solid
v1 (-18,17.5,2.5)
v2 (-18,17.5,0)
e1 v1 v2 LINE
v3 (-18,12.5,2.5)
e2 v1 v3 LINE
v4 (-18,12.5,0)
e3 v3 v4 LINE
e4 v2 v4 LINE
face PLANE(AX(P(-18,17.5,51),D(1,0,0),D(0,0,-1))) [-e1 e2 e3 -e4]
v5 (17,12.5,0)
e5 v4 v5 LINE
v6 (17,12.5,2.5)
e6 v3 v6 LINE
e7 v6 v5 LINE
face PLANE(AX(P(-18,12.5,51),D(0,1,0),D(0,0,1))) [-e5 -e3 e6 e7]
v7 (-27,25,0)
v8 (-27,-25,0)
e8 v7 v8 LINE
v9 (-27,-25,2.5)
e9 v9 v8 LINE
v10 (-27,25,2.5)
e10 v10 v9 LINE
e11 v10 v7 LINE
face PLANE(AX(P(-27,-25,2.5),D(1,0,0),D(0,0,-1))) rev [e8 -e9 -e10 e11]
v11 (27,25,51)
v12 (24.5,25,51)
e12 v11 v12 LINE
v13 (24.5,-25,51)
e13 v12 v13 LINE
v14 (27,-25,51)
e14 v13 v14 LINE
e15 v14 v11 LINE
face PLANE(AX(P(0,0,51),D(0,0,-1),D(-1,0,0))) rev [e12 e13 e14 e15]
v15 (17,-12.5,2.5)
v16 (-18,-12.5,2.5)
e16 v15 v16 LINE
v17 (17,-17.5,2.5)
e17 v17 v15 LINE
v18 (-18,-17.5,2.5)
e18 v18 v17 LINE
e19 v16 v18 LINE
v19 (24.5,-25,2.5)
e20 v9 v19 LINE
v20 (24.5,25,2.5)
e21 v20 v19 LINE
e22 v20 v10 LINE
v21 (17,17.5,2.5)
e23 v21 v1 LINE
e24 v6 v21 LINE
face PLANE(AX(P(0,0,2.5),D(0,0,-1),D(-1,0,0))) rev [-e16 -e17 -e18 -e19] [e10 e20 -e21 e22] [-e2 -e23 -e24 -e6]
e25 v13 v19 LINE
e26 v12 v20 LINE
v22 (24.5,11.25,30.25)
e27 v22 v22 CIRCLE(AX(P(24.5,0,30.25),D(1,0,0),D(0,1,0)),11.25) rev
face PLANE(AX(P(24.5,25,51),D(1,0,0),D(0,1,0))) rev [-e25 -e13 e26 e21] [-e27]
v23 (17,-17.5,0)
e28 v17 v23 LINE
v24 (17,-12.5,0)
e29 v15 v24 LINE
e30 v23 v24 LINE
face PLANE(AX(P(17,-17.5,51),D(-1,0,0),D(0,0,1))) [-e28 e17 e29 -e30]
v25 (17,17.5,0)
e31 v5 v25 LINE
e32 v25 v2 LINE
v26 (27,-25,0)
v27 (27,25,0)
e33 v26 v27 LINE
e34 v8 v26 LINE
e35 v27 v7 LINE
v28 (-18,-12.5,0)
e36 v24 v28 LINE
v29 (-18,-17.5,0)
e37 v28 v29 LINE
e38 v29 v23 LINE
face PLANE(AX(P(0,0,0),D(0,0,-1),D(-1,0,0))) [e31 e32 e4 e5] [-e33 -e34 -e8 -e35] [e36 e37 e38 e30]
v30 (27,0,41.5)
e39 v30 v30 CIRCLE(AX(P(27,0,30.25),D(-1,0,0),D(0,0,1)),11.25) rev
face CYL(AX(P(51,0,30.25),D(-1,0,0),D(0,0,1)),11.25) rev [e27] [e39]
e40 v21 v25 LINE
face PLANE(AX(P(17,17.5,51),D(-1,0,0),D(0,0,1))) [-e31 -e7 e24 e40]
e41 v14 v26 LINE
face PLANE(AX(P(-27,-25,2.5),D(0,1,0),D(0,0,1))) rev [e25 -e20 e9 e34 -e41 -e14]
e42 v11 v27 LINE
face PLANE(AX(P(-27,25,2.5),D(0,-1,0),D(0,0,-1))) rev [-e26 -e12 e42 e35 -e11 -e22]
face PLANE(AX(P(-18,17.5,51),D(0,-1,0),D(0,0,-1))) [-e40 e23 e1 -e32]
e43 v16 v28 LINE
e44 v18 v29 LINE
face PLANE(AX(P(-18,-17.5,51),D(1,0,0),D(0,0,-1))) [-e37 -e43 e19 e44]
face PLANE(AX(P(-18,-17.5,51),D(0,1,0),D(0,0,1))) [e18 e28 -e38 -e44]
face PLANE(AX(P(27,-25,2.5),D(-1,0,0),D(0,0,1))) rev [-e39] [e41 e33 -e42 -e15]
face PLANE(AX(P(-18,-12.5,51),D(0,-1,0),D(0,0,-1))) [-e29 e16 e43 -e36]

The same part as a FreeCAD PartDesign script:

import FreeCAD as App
import Part
import Sketcher

V = App.Vector
Q = App.Units.Quantity

doc = App.newDocument("Part")
body = doc.addObject("PartDesign::Body", "Body")

sketch1 = body.newObject("Sketcher::SketchObject", "Sketch")
sketch1.AttachmentSupport = (doc.getObject("XY_Plane"), [""])
sketch1.MapMode = "FlatFace"
sketch1.addGeometry([
    Part.LineSegment(V(-27, 25, 0), V(-27, -25, 0)),
    Part.LineSegment(V(-27, -25, 0), V(27, -25, 0)),
    Part.LineSegment(V(27, -25, 0), V(27, 25, 0)),
    Part.LineSegment(V(27, 25, 0), V(-27, 25, 0)),
], False)
sketch1.addConstraint([
    Sketcher.Constraint("Coincident", 0, 2, 1, 1),
    Sketcher.Constraint("Coincident", 1, 2, 2, 1),
    Sketcher.Constraint("Coincident", 2, 2, 3, 1),
    Sketcher.Constraint("Coincident", 3, 2, 0, 1),
    Sketcher.Constraint("Vertical", 0),
    Sketcher.Constraint("Horizontal", 1),
    Sketcher.Constraint("Vertical", 2),
    Sketcher.Constraint("Horizontal", 3),
    Sketcher.Constraint("Symmetric", 0, 2, 2, 2, -1, 1),
    Sketcher.Constraint("DistanceX", 1, 1, 1, 2, Q("54 mm")),
    Sketcher.Constraint("DistanceY", 0, 2, 0, 1, Q("50 mm")),
])
pad1 = body.newObject("PartDesign::Pad", "Pad")
pad1.Profile = sketch1
pad1.Length = 2.5

sketch2 = body.newObject("Sketcher::SketchObject", "Sketch001")
sketch2.AttachmentSupport = (doc.getObject("XY_Plane"), [""])
sketch2.MapMode = "FlatFace"
sketch2.addGeometry([
    Part.LineSegment(V(24.5, 25, 0), V(24.5, -25, 0)),
    Part.LineSegment(V(24.5, -25, 0), V(27, -25, 0)),
    Part.LineSegment(V(27, -25, 0), V(27, 25, 0)),
    Part.LineSegment(V(27, 25, 0), V(24.5, 25, 0)),
], False)
sketch2.addConstraint([
    Sketcher.Constraint("Coincident", 0, 2, 1, 1),
    Sketcher.Constraint("Coincident", 1, 2, 2, 1),
    Sketcher.Constraint("Coincident", 2, 2, 3, 1),
    Sketcher.Constraint("Coincident", 3, 2, 0, 1),
    Sketcher.Constraint("Vertical", 0),
    Sketcher.Constraint("Horizontal", 1),
    Sketcher.Constraint("Vertical", 2),
    Sketcher.Constraint("Horizontal", 3),
    Sketcher.Constraint("DistanceY", 0, 2, 0, 1, Q("50 mm")),
    Sketcher.Constraint("DistanceX", 1, 1, 1, 2, Q("2.5 mm")),
    Sketcher.Constraint("DistanceY", 0, 2, -1, 1, Q("25 mm")),
    Sketcher.Constraint("DistanceX", -1, 1, 1, 2, Q("27 mm")),
])
pad2 = body.newObject("PartDesign::Pad", "Pad001")
pad2.Profile = sketch2
pad2.Length = 51

sketch3 = body.newObject("Sketcher::SketchObject", "Sketch002")
sketch3.AttachmentSupport = (doc.getObject("YZ_Plane"), [""])
sketch3.MapMode = "FlatFace"
sketch3.addGeometry(Part.Circle(V(0, 30.25, 0), V(0, 0, 1), 11.25), False)
sketch3.addConstraint([
    Sketcher.Constraint("PointOnObject", 0, 3, -2),
    Sketcher.Constraint("Diameter", 0, Q("22.5 mm")),
    Sketcher.Constraint("DistanceY", -1, 1, 0, 3, Q("30.25 mm")),
])
pocket1 = body.newObject("PartDesign::Pocket", "Pocket")
pocket1.Profile = sketch3
pocket1.Length = 51
pocket1.Reversed = True

sketch4 = body.newObject("Sketcher::SketchObject", "Sketch003")
sketch4.AttachmentSupport = (doc.getObject("XY_Plane"), [""])
sketch4.MapMode = "FlatFace"
sketch4.addGeometry([
    Part.LineSegment(V(-18, 17.5, 0), V(-18, 12.5, 0)),
    Part.LineSegment(V(-18, 12.5, 0), V(17, 12.5, 0)),
    Part.LineSegment(V(17, 12.5, 0), V(17, 17.5, 0)),
    Part.LineSegment(V(17, 17.5, 0), V(-18, 17.5, 0)),
    Part.LineSegment(V(-18, -12.5, 0), V(-18, -17.5, 0)),
    Part.LineSegment(V(-18, -17.5, 0), V(17, -17.5, 0)),
    Part.LineSegment(V(17, -17.5, 0), V(17, -12.5, 0)),
    Part.LineSegment(V(17, -12.5, 0), V(-18, -12.5, 0)),
], False)
sketch4.addConstraint([
    Sketcher.Constraint("Coincident", 0, 2, 1, 1),
    Sketcher.Constraint("Coincident", 1, 2, 2, 1),
    Sketcher.Constraint("Coincident", 2, 2, 3, 1),
    Sketcher.Constraint("Coincident", 3, 2, 0, 1),
    Sketcher.Constraint("Coincident", 4, 2, 5, 1),
    Sketcher.Constraint("Coincident", 5, 2, 6, 1),
    Sketcher.Constraint("Coincident", 6, 2, 7, 1),
    Sketcher.Constraint("Coincident", 7, 2, 4, 1),
    Sketcher.Constraint("Vertical", 0),
    Sketcher.Constraint("Horizontal", 1),
    Sketcher.Constraint("Vertical", 2),
    Sketcher.Constraint("Horizontal", 3),
    Sketcher.Constraint("Vertical", 4),
    Sketcher.Constraint("Horizontal", 5),
    Sketcher.Constraint("Vertical", 6),
    Sketcher.Constraint("Horizontal", 7),
    Sketcher.Constraint("Symmetric", 3, 2, 4, 2, -1),
    Sketcher.Constraint("Symmetric", 1, 2, 6, 2, -1),
    Sketcher.Constraint("DistanceX", 1, 1, 1, 2, Q("35 mm")),
    Sketcher.Constraint("DistanceY", 0, 2, 0, 1, Q("5 mm")),
    Sketcher.Constraint("DistanceX", 0, 2, -1, 1, Q("18 mm")),
    Sketcher.Constraint("DistanceY", 4, 2, 0, 2, Q("30 mm")),
])
pocket2 = body.newObject("PartDesign::Pocket", "Pocket001")
pocket2.Profile = sketch4
pocket2.Length = 51
pocket2.Reversed = True

doc.recompute()
